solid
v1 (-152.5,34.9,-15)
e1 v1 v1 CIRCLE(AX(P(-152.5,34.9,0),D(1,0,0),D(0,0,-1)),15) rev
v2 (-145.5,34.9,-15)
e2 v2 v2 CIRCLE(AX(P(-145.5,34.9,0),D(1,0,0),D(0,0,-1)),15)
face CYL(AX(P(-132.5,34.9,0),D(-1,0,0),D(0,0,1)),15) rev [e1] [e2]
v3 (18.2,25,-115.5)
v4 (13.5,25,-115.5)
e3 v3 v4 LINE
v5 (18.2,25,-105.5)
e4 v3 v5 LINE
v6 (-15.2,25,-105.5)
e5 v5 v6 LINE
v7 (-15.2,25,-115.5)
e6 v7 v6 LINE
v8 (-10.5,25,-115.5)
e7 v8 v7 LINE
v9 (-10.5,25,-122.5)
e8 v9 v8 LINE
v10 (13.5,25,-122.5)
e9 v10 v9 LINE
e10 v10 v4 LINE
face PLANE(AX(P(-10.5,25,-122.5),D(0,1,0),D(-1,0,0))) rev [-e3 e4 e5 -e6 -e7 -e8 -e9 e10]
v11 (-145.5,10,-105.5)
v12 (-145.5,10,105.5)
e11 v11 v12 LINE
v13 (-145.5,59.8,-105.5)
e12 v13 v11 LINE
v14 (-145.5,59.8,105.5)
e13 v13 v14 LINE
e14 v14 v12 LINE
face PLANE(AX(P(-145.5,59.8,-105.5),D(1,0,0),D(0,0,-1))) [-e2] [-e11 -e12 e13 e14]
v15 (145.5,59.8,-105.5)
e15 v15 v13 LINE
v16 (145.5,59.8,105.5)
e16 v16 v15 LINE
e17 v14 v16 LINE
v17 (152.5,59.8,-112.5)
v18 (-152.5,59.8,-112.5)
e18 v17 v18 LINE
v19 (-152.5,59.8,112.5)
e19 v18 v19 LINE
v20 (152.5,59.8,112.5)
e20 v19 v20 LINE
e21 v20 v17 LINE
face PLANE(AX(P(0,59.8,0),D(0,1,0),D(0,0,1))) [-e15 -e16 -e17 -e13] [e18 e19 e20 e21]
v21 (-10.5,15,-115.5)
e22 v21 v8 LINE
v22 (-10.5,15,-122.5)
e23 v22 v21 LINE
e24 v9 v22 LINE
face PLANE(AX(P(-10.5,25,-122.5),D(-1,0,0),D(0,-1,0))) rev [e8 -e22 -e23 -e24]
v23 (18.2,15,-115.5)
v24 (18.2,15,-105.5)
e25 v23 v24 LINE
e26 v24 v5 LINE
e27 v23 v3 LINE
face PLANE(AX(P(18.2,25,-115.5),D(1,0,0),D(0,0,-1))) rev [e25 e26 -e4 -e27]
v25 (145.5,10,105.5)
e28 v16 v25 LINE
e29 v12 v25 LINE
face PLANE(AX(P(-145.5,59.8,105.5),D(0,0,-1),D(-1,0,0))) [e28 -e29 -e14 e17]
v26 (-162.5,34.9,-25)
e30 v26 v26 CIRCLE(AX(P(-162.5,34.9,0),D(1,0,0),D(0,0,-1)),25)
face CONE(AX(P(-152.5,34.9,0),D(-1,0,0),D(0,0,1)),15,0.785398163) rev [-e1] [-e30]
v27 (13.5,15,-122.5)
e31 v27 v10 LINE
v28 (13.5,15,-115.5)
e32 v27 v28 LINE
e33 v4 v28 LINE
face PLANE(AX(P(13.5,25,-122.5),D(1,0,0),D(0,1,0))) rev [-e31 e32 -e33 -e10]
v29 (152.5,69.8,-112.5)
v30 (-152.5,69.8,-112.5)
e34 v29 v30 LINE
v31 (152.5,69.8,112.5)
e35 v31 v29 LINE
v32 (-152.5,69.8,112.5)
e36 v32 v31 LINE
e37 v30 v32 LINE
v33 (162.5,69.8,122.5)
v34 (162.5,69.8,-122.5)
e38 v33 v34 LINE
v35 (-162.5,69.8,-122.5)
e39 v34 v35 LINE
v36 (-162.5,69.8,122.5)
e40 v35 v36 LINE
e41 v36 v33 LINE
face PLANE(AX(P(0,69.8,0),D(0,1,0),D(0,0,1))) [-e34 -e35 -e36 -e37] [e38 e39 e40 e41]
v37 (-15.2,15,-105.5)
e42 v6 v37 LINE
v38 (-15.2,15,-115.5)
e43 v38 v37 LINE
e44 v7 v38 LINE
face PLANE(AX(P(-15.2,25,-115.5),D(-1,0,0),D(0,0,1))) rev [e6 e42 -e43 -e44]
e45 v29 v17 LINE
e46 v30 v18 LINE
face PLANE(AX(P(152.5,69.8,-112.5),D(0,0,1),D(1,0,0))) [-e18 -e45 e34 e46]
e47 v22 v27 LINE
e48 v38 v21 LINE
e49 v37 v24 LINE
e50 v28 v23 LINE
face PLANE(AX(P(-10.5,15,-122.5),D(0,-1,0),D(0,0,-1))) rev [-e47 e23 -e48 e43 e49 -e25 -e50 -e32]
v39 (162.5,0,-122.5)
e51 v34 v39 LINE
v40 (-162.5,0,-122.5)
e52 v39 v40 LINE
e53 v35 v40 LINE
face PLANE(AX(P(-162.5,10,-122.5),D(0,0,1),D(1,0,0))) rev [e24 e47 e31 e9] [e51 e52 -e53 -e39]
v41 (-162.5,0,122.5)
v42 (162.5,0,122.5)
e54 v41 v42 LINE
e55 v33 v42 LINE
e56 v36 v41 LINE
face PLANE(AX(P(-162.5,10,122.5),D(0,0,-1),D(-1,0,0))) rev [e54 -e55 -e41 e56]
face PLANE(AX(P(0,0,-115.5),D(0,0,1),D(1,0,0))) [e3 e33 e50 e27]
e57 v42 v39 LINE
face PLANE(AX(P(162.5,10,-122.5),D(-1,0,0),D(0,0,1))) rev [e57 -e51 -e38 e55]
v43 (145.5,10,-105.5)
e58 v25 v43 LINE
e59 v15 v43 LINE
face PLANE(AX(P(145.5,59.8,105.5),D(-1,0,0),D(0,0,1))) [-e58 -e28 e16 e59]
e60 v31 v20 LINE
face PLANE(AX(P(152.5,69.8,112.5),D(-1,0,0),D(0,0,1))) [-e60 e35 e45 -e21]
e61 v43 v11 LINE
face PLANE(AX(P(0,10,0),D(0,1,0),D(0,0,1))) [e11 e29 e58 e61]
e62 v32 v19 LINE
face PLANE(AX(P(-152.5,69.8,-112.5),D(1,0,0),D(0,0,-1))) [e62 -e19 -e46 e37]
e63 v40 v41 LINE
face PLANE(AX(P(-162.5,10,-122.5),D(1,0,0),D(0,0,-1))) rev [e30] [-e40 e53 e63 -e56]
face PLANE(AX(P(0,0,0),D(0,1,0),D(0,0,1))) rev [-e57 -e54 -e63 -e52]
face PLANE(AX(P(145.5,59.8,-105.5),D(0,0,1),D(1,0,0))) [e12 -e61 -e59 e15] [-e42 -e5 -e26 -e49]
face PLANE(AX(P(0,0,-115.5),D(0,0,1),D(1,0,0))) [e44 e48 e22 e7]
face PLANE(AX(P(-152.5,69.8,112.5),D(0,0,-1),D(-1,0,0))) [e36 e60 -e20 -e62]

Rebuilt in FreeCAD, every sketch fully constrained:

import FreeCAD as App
import Part
import Sketcher
Q = App.Units.Quantity


def edges_at(feature, points):
    """Names of the edges that pass closest to the given points."""
    edges = feature.Shape.Edges
    near = lambda p: min(range(len(edges)), key=lambda i: edges[i].distToShape(Part.Vertex(*p))[0])
    return sorted({f"Edge{near(p) + 1}" for p in points})

doc = App.newDocument("Part")
params = doc.addObject("Spreadsheet::Sheet", "Params")
for row, (alias, value) in enumerate([
    ("sketch1_width", "325 mm"),
    ("sketch1_height", "245 mm"),
    ("pad1_length", "10 mm"),
    ("sketch2_width", "325 mm"),
    ("sketch2_width2", "291 mm"),
    ("sketch2_height", "245 mm"),
    ("sketch2_height2", "211 mm"),
    ("pad2_length", "49.8 mm"),
    ("sketch3_width", "325 mm"),
    ("sketch3_width2", "305 mm"),
    ("sketch3_height", "245 mm"),
    ("sketch3_height2", "225 mm"),
    ("pad3_length", "10 mm"),
    ("sketch4_diameter", "30 mm"),
    ("pocket1_length", "30 mm"),
    ("chamfer_size", "10 mm"),
    ("sketch5_width", "24 mm"),
    ("sketch5_height", "10 mm"),
    ("sketch6_height", "10 mm"),
    ("sketch6_width", "33.4 mm"),
    ("pocket3_length", "10 mm"),
], start=1):
    params.set(f"A{row}", alias)
    params.set(f"B{row}", "=" + value)
    params.setAlias(f"B{row}", alias)

body = doc.addObject("PartDesign::Body", "Body")

# Sketch on XZ plane
sketch1 = doc.addObject("Sketcher::SketchObject", "Sketch")
body.addObject(sketch1)
sketch1.AttachmentSupport = (doc.XZ_Plane, [""])
sketch1.MapMode = "FlatFace"
sketch1.addGeometry([
    Part.LineSegment(App.Vector(-162, -122, 0), App.Vector(-162, 122, 0)),
    Part.LineSegment(App.Vector(-162, 122, 0), App.Vector(162, 122, 0)),
    Part.LineSegment(App.Vector(162, 122, 0), App.Vector(162, -122, 0)),
    Part.LineSegment(App.Vector(162, -122, 0), App.Vector(-162, -122, 0)),
], False)
sketch1.addConstraint([
    Sketcher.Constraint("Coincident", 0, 2, 1, 1),
    Sketcher.Constraint("Coincident", 1, 2, 2, 1),
    Sketcher.Constraint("Coincident", 2, 2, 3, 1),
    Sketcher.Constraint("Coincident", 3, 2, 0, 1),
    Sketcher.Constraint("Vertical", 0),
    Sketcher.Constraint("Horizontal", 1),
    Sketcher.Constraint("Vertical", 2),
    Sketcher.Constraint("Horizontal", 3),
    Sketcher.Constraint("Symmetric", 0, 2, 2, 2, -1, 1),
    Sketcher.Constraint("DistanceX", 1, 1, 1, 2, Q("325 mm")),
    Sketcher.Constraint("DistanceY", 0, 1, 0, 2, Q("245 mm")),
])
sketch1.setExpression("Constraints[9]", "Params.sketch1_width")
sketch1.setExpression("Constraints[10]", "Params.sketch1_height")
pad1 = doc.addObject("PartDesign::Pad", "Pad")
body.addObject(pad1)
pad1.Profile = sketch1
pad1.setExpression("Length", "Params.pad1_length")
pad1.Reversed = True

# Sketch on XZ plane
sketch2 = doc.addObject("Sketcher::SketchObject", "Sketch001")
body.addObject(sketch2)
sketch2.AttachmentSupport = (doc.XZ_Plane, [""])
sketch2.MapMode = "FlatFace"
sketch2.AttachmentOffset = App.Placement(App.Vector(0, 0, -10), App.Rotation())
sketch2.addGeometry([
    Part.LineSegment(App.Vector(-162, -122, 0), App.Vector(-162, 122, 0)),  # 0
    Part.LineSegment(App.Vector(-162, 122, 0), App.Vector(162, 122, 0)),  # 1
    Part.LineSegment(App.Vector(162, 122, 0), App.Vector(162, -122, 0)),  # 2
    Part.LineSegment(App.Vector(162, -122, 0), App.Vector(-162, -122, 0)),  # 3
    Part.LineSegment(App.Vector(146, 106, 0), App.Vector(-146, 106, 0)),  # 4
    Part.LineSegment(App.Vector(-146, 106, 0), App.Vector(-146, -106, 0)),  # 5
    Part.LineSegment(App.Vector(-146, -106, 0), App.Vector(146, -106, 0)),  # 6
    Part.LineSegment(App.Vector(146, -106, 0), App.Vector(146, 106, 0)),  # 7
], False)
sketch2.addConstraint([
    Sketcher.Constraint("Coincident", 0, 2, 1, 1),
    Sketcher.Constraint("Coincident", 1, 2, 2, 1),
    Sketcher.Constraint("Coincident", 2, 2, 3, 1),
    Sketcher.Constraint("Coincident", 3, 2, 0, 1),
    Sketcher.Constraint("Coincident", 4, 2, 5, 1),
    Sketcher.Constraint("Coincident", 5, 2, 6, 1),
    Sketcher.Constraint("Coincident", 6, 2, 7, 1),
    Sketcher.Constraint("Coincident", 7, 2, 4, 1),
    Sketcher.Constraint("Vertical", 0),
    Sketcher.Constraint("Horizontal", 1),
    Sketcher.Constraint("Vertical", 2),
    Sketcher.Constraint("Horizontal", 3),
    Sketcher.Constraint("Horizontal", 4),
    Sketcher.Constraint("Vertical", 5),
    Sketcher.Constraint("Horizontal", 6),
    Sketcher.Constraint("Vertical", 7),
    Sketcher.Constraint("Symmetric", 0, 2, 2, 2, -1, 1),
    Sketcher.Constraint("Symmetric", 4, 2, 6, 2, -1, 1),
    Sketcher.Constraint("DistanceX", 1, 1, 1, 2, Q("325 mm")),
    Sketcher.Constraint("DistanceX", 4, 2, 4, 1, Q("291 mm")),
    Sketcher.Constraint("DistanceY", 0, 1, 0, 2, Q("245 mm")),
    Sketcher.Constraint("DistanceY", 5, 2, 5, 1, Q("211 mm")),
])
sketch2.setExpression("Constraints[18]", "Params.sketch2_width")
sketch2.setExpression("Constraints[19]", "Params.sketch2_width2")
sketch2.setExpression("Constraints[20]", "Params.sketch2_height")
sketch2.setExpression("Constraints[21]", "Params.sketch2_height2")
pad2 = doc.addObject("PartDesign::Pad", "Pad001")
body.addObject(pad2)
pad2.Profile = sketch2
pad2.setExpression("Length", "Params.pad2_length")
pad2.Reversed = True

# Sketch on XZ plane
sketch3 = doc.addObject("Sketcher::SketchObject", "Sketch002")
body.addObject(sketch3)
sketch3.AttachmentSupport = (doc.XZ_Plane, [""])
sketch3.MapMode = "FlatFace"
sketch3.AttachmentOffset = App.Placement(App.Vector(0, 0, -59.8), App.Rotation())
sketch3.addGeometry([
    Part.LineSegment(App.Vector(-162, -122, 0), App.Vector(-162, 122, 0)),  # 0
    Part.LineSegment(App.Vector(-162, 122, 0), App.Vector(162, 122, 0)),  # 1
    Part.LineSegment(App.Vector(162, 122, 0), App.Vector(162, -122, 0)),  # 2
    Part.LineSegment(App.Vector(162, -122, 0), App.Vector(-162, -122, 0)),  # 3
    Part.LineSegment(App.Vector(152, 112, 0), App.Vector(-152, 112, 0)),  # 4
    Part.LineSegment(App.Vector(-152, 112, 0), App.Vector(-152, -112, 0)),  # 5
    Part.LineSegment(App.Vector(-152, -112, 0), App.Vector(152, -112, 0)),  # 6
    Part.LineSegment(App.Vector(152, -112, 0), App.Vector(152, 112, 0)),  # 7
], False)
sketch3.addConstraint([
    Sketcher.Constraint("Coincident", 0, 2, 1, 1),
    Sketcher.Constraint("Coincident", 1, 2, 2, 1),
    Sketcher.Constraint("Coincident", 2, 2, 3, 1),
    Sketcher.Constraint("Coincident", 3, 2, 0, 1),
    Sketcher.Constraint("Coincident", 4, 2, 5, 1),
    Sketcher.Constraint("Coincident", 5, 2, 6, 1),
    Sketcher.Constraint("Coincident", 6, 2, 7, 1),
    Sketcher.Constraint("Coincident", 7, 2, 4, 1),
    Sketcher.Constraint("Vertical", 0),
    Sketcher.Constraint("Horizontal", 1),
    Sketcher.Constraint("Vertical", 2),
    Sketcher.Constraint("Horizontal", 3),
    Sketcher.Constraint("Horizontal", 4),
    Sketcher.Constraint("Vertical", 5),
    Sketcher.Constraint("Horizontal", 6),
    Sketcher.Constraint("Vertical", 7),
    Sketcher.Constraint("Symmetric", 0, 2, 2, 2, -1, 1),
    Sketcher.Constraint("Symmetric", 4, 2, 6, 2, -1, 1),
    Sketcher.Constraint("DistanceX", 1, 1, 1, 2, Q("325 mm")),
    Sketcher.Constraint("DistanceX", 4, 2, 4, 1, Q("305 mm")),
    Sketcher.Constraint("DistanceY", 0, 1, 0, 2, Q("245 mm")),
    Sketcher.Constraint("DistanceY", 5, 2, 5, 1, Q("225 mm")),
])
sketch3.setExpression("Constraints[18]", "Params.sketch3_width")
sketch3.setExpression("Constraints[19]", "Params.sketch3_width2")
sketch3.setExpression("Constraints[20]", "Params.sketch3_height")
sketch3.setExpression("Constraints[21]", "Params.sketch3_height2")
pad3 = doc.addObject("PartDesign::Pad", "Pad002")
body.addObject(pad3)
pad3.Profile = sketch3
pad3.setExpression("Length", "Params.pad3_length")
pad3.Reversed = True

# Sketch on YZ plane
sketch4 = doc.addObject("Sketcher::SketchObject", "Sketch003")
body.addObject(sketch4)
sketch4.AttachmentSupport = (doc.YZ_Plane, [""])
sketch4.MapMode = "FlatFace"
sketch4.AttachmentOffset = App.Placement(App.Vector(0, 0, -162.5), App.Rotation())
sketch4.addGeometry(Part.Circle(App.Vector(35, 0, 0), App.Vector(0, 0, 1), 15), False)
sketch4.addConstraint([
    Sketcher.Constraint("PointOnObject", 0, 3, -1),
    Sketcher.Constraint("Diameter", 0, Q("30 mm")),
    Sketcher.Constraint("DistanceX", -1, 1, 0, 3, Q("34.9 mm")),
])
sketch4.setExpression("Constraints[1]", "Params.sketch4_diameter")
pocket1 = doc.addObject("PartDesign::Pocket", "Pocket")
body.addObject(pocket1)
pocket1.Profile = sketch4
pocket1.setExpression("Length", "Params.pocket1_length")
pocket1.Reversed = True
doc.recompute()

chamfer = doc.addObject("PartDesign::Chamfer", "Chamfer")
body.addObject(chamfer)
chamfer.Base = (pocket1, edges_at(pocket1, [(-162.5, 34.9, -15)]))
chamfer.setExpression("Size", "Params.chamfer_size")

# Sketch on XY plane
sketch5 = doc.addObject("Sketcher::SketchObject", "Sketch004")
body.addObject(sketch5)
sketch5.AttachmentSupport = (doc.XY_Plane, [""])
sketch5.MapMode = "FlatFace"
sketch5.AttachmentOffset = App.Placement(App.Vector(0, 0, -105.5), App.Rotation())
sketch5.addGeometry([
    Part.LineSegment(App.Vector(-10, 25, 0), App.Vector(-10, 15, 0)),
    Part.LineSegment(App.Vector(-10, 15, 0), App.Vector(14, 15, 0)),
    Part.LineSegment(App.Vector(14, 15, 0), App.Vector(14, 25, 0)),
    Part.LineSegment(App.Vector(14, 25, 0), App.Vector(-10, 25, 0)),
], False)
sketch5.addConstraint([
    Sketcher.Constraint("Coincident", 0, 2, 1, 1),
    Sketcher.Constraint("Coincident", 1, 2, 2, 1),
    Sketcher.Constraint("Coincident", 2, 2, 3, 1),
    Sketcher.Constraint("Coincident", 3, 2, 0, 1),
    Sketcher.Constraint("Vertical", 0),
    Sketcher.Constraint("Horizontal", 1),
    Sketcher.Constraint("Vertical", 2),
    Sketcher.Constraint("Horizontal", 3),
    Sketcher.Constraint("DistanceX", 1, 1, 1, 2, Q("24 mm")),
    Sketcher.Constraint("DistanceY", 0, 2, 0, 1, Q("10 mm")),
    Sketcher.Constraint("DistanceY", -1, 1, 0, 2, Q("15 mm")),
    Sketcher.Constraint("DistanceX", 0, 2, -1, 1, Q("10.5 mm")),
])
sketch5.setExpression("Constraints[8]", "Params.sketch5_width")
sketch5.setExpression("Constraints[9]", "Params.sketch5_height")
pocket2 = doc.addObject("PartDesign::Pocket", "Pocket001")
body.addObject(pocket2)
pocket2.Profile = sketch5
pocket2.Type = "ThroughAll"

# Sketch on XY plane
sketch6 = doc.addObject("Sketcher::SketchObject", "Sketch005")
body.addObject(sketch6)
sketch6.AttachmentSupport = (doc.XY_Plane, [""])
sketch6.MapMode = "FlatFace"
sketch6.AttachmentOffset = App.Placement(App.Vector(0, 0, -105.5), App.Rotation())
sketch6.addGeometry([
    Part.LineSegment(App.Vector(-15, 25, 0), App.Vector(-15, 15, 0)),
    Part.LineSegment(App.Vector(-15, 15, 0), App.Vector(18, 15, 0)),
    Part.LineSegment(App.Vector(18, 15, 0), App.Vector(18, 25, 0)),
    Part.LineSegment(App.Vector(18, 25, 0), App.Vector(-15, 25, 0)),
], False)
sketch6.addConstraint([
    Sketcher.Constraint("Coincident", 0, 2, 1, 1),
    Sketcher.Constraint("Coincident", 1, 2, 2, 1),
    Sketcher.Constraint("Coincident", 2, 2, 3, 1),
    Sketcher.Constraint("Coincident", 3, 2, 0, 1),
    Sketcher.Constraint("Vertical", 0),
    Sketcher.Constraint("Horizontal", 1),
    Sketcher.Constraint("Vertical", 2),
    Sketcher.Constraint("Horizontal", 3),
    Sketcher.Constraint("DistanceY", 0, 2, 0, 1, Q("10 mm")),
    Sketcher.Constraint("DistanceX", 1, 1, 1, 2, Q("33.4 mm")),
    Sketcher.Constraint("DistanceY", -1, 1, 0, 2, Q("15 mm")),
    Sketcher.Constraint("DistanceX", 0, 2, -1, 1, Q("15.2 mm")),
])
sketch6.setExpression("Constraints[8]", "Params.sketch6_height")
sketch6.setExpression("Constraints[9]", "Params.sketch6_width")
pocket3 = doc.addObject("PartDesign::Pocket", "Pocket002")
body.addObject(pocket3)
pocket3.Profile = sketch6
pocket3.setExpression("Length", "Params.pocket3_length")

doc.recompute()
